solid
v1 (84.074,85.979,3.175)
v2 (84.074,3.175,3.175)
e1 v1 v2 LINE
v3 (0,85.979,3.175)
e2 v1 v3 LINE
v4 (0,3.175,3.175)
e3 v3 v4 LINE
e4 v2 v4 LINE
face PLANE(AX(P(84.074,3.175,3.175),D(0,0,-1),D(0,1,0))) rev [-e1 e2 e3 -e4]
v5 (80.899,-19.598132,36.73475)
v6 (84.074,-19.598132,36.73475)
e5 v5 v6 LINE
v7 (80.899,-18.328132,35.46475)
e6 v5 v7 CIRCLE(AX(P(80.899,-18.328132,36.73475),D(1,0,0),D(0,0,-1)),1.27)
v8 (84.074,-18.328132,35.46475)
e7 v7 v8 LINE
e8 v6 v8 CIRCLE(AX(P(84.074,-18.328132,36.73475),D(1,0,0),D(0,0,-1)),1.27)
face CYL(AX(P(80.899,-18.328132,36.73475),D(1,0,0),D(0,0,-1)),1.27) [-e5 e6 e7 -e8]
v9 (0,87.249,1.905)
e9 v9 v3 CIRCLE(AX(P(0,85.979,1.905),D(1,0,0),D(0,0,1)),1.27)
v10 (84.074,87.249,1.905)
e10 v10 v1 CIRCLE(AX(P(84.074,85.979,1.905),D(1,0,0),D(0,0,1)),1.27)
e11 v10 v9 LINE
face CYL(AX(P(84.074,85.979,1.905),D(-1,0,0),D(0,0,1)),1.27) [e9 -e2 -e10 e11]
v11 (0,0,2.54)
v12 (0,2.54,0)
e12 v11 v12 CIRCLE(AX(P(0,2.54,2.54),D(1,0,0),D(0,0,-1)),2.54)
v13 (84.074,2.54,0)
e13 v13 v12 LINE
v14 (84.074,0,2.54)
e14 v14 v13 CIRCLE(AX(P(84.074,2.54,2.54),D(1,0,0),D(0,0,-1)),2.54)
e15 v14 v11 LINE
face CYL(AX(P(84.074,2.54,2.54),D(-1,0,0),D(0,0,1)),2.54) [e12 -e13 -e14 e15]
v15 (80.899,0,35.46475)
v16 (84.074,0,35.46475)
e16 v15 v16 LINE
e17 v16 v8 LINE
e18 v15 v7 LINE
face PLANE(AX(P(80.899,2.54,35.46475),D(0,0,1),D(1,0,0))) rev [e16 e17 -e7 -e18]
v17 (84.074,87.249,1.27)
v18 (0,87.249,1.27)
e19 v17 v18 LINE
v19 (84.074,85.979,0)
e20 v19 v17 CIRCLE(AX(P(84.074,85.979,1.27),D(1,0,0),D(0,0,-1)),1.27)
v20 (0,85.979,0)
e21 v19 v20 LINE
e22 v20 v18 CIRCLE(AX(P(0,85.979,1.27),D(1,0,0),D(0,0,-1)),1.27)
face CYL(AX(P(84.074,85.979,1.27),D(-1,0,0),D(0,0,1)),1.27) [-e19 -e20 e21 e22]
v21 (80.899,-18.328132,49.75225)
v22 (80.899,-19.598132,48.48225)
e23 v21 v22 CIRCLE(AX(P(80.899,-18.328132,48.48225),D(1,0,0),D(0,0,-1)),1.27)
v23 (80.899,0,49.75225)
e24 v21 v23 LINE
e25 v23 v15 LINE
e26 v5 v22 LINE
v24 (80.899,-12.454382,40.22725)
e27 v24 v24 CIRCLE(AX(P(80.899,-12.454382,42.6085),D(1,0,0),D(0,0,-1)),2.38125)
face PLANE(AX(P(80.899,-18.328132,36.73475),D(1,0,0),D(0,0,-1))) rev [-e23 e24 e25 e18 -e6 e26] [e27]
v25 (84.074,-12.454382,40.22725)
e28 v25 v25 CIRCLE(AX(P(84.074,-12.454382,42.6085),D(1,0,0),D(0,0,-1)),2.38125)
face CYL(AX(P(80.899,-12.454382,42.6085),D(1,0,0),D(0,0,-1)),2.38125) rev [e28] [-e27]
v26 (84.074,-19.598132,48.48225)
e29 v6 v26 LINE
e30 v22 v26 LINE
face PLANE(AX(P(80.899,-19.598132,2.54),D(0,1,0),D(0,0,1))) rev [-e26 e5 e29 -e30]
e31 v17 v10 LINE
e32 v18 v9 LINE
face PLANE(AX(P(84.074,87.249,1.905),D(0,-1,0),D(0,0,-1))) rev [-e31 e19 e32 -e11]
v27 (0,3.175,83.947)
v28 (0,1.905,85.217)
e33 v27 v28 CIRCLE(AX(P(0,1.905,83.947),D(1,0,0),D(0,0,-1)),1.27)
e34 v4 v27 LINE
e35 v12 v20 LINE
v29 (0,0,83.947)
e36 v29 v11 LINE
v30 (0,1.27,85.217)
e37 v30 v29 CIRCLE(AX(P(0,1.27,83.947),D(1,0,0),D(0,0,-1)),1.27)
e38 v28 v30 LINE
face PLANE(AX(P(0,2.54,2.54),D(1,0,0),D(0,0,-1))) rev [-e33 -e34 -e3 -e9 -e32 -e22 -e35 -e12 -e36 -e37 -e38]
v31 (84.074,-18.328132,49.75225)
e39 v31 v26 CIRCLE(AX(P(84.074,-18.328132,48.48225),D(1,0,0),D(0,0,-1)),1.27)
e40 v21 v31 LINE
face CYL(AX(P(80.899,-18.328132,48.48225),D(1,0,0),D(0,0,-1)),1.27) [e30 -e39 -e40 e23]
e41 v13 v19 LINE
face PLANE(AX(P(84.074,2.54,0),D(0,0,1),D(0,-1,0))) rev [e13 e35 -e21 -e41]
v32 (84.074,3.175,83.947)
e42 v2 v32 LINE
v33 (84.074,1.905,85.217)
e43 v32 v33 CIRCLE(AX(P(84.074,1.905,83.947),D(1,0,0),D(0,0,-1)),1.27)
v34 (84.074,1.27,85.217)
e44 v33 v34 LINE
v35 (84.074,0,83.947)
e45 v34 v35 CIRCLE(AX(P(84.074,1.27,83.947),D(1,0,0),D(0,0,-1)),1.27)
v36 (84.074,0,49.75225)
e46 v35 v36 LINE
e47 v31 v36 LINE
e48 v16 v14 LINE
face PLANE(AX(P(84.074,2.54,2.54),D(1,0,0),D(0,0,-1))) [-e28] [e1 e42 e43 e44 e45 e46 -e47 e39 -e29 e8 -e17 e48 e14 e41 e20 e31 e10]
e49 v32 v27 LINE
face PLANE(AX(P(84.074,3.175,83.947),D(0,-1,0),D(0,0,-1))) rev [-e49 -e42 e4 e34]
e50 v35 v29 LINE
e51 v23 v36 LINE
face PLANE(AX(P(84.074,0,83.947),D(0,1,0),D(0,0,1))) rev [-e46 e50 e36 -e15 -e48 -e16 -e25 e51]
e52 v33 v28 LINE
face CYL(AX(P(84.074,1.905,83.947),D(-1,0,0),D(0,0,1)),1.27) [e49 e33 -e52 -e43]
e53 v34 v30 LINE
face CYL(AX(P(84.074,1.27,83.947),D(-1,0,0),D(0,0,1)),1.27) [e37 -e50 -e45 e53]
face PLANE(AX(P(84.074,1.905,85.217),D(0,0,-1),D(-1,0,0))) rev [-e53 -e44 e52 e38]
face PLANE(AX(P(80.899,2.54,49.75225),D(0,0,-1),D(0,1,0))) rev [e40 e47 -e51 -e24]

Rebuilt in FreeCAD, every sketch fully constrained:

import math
import FreeCAD as App
import Part
import Sketcher

V = App.Vector
Q = App.Units.Quantity

doc = App.newDocument("Part")
body = doc.addObject("PartDesign::Body", "Body")

# Sketch on YZ plane
sketch1 = doc.addObject("Sketcher::SketchObject", "Sketch")
body.addObject(sketch1)
sketch1.AttachmentSupport = (doc.YZ_Plane, [""])
sketch1.MapMode = "FlatFace"
sketch1.addGeometry(Part.LineSegment(V(2.5, 0, 0), V(86, 0, 0)), False)
sketch1.addGeometry(Part.ArcOfCircle(Part.Circle(V(86, 1.3, 0), V(0, 0, 1), 1.3), math.radians(-90), math.radians(0)), False)
sketch1.addGeometry(Part.LineSegment(V(87.2, 1.3, 0), V(87.2, 1.9, 0)), False)
sketch1.addGeometry(Part.ArcOfCircle(Part.Circle(V(86, 1.9, 0), V(0, 0, 1), 1.3), math.radians(0), math.radians(90)), False)
sketch1.addGeometry(Part.LineSegment(V(86, 3.2, 0), V(3.2, 3.2, 0)), False)
sketch1.addGeometry(Part.LineSegment(V(3.2, 3.2, 0), V(3.2, 83.9, 0)), False)
sketch1.addGeometry(Part.ArcOfCircle(Part.Circle(V(1.9, 83.9, 0), V(0, 0, 1), 1.3), math.radians(0), math.radians(90)), False)
sketch1.addGeometry(Part.LineSegment(V(1.9, 85.2, 0), V(1.3, 85.2, 0)), False)
sketch1.addGeometry(Part.ArcOfCircle(Part.Circle(V(1.3, 83.9, 0), V(0, 0, 1), 1.3), math.radians(90), math.radians(180)), False)
sketch1.addGeometry(Part.LineSegment(V(0, 83.9, 0), V(0, 2.5, 0)), False)
sketch1.addGeometry(Part.ArcOfCircle(Part.Circle(V(2.5, 2.5, 0), V(0, 0, 1), 2.5), math.radians(-180), math.radians(-90)), False)
sketch1.addConstraint(Sketcher.Constraint("Tangent", 0, 2, 1, 1))
sketch1.addConstraint(Sketcher.Constraint("Tangent", 1, 2, 2, 1))
sketch1.addConstraint(Sketcher.Constraint("Tangent", 2, 2, 3, 1))
sketch1.addConstraint(Sketcher.Constraint("Tangent", 3, 2, 4, 1))
sketch1.addConstraint(Sketcher.Constraint("Coincident", 4, 2, 5, 1))
sketch1.addConstraint(Sketcher.Constraint("Tangent", 5, 2, 6, 1))
sketch1.addConstraint(Sketcher.Constraint("Tangent", 6, 2, 7, 1))
sketch1.addConstraint(Sketcher.Constraint("Tangent", 7, 2, 8, 1))
sketch1.addConstraint(Sketcher.Constraint("Tangent", 8, 2, 9, 1))
sketch1.addConstraint(Sketcher.Constraint("Tangent", 9, 2, 10, 1))
sketch1.addConstraint(Sketcher.Constraint("Tangent", 10, 2, 0, 1))
sketch1.addConstraint(Sketcher.Constraint("Horizontal", 0))
sketch1.addConstraint(Sketcher.Constraint("Vertical", 2))
sketch1.addConstraint(Sketcher.Constraint("Horizontal", 4))
sketch1.addConstraint(Sketcher.Constraint("Vertical", 5))
sketch1.addConstraint(Sketcher.Constraint("Horizontal", 7))
sketch1.addConstraint(Sketcher.Constraint("Vertical", 9))
sketch1.addConstraint(Sketcher.Constraint("Equal", 1, 3))
sketch1.addConstraint(Sketcher.Constraint("Equal", 3, 6))
sketch1.addConstraint(Sketcher.Constraint("Equal", 6, 8))
sketch1.addConstraint(Sketcher.Constraint("PointOnObject", 0, 2, -1))
sketch1.addConstraint(Sketcher.Constraint("PointOnObject", 8, 2, -2))
sketch1.addConstraint(Sketcher.Constraint("Equal", 7, 2))
sketch1.addConstraint(Sketcher.Constraint("Radius", 10, Q("0.1 in")))
sketch1.addConstraint(Sketcher.Constraint("Radius", 1, Q("0.05 in")))
sketch1.addConstraint(Sketcher.Constraint("DistanceX", 4, 2, 4, 1, Q("3.26 in")))
sketch1.addConstraint(Sketcher.Constraint("DistanceY", 5, 1, 5, 2, Q("3.18 in")))
sketch1.addConstraint(Sketcher.Constraint("DistanceX", 0, 1, 0, 2, Q("3.285 in")))
pad1 = doc.addObject("PartDesign::Pad", "Pad")
body.addObject(pad1)
pad1.Profile = sketch1
pad1.Length = Q("3.31 in")

# Sketch on YZ plane
sketch2 = doc.addObject("Sketcher::SketchObject", "Sketch001")
body.addObject(sketch2)
sketch2.AttachmentSupport = (doc.YZ_Plane, [""])
sketch2.MapMode = "FlatFace"
sketch2.AttachmentOffset = App.Placement(V(0, 0, 3.31 * 25.4), App.Rotation())
sketch2.addGeometry(Part.LineSegment(V(0, 49.8, 0), V(-18.3, 49.8, 0)), False)
sketch2.addGeometry(Part.ArcOfCircle(Part.Circle(V(-18.3, 48.5, 0), V(0, 0, 1), 1.3), math.radians(90), math.radians(180)), False)
sketch2.addGeometry(Part.LineSegment(V(-19.6, 48.5, 0), V(-19.6, 36.7, 0)), False)
sketch2.addGeometry(Part.ArcOfCircle(Part.Circle(V(-18.3, 36.7, 0), V(0, 0, 1), 1.3), math.radians(180), math.radians(270)), False)
sketch2.addGeometry(Part.LineSegment(V(-18.3, 35.5, 0), V(0, 35.5, 0)), False)
sketch2.addGeometry(Part.LineSegment(V(0, 35.5, 0), V(0, 49.8, 0)), False)
sketch2.addGeometry(Part.Circle(V(-12.5, 42.6, 0), V(0, 0, 1), 2.4), False)
sketch2.addConstraint(Sketcher.Constraint("Tangent", 0, 2, 1, 1))
sketch2.addConstraint(Sketcher.Constraint("Tangent", 1, 2, 2, 1))
sketch2.addConstraint(Sketcher.Constraint("Tangent", 2, 2, 3, 1))
sketch2.addConstraint(Sketcher.Constraint("Tangent", 3, 2, 4, 1))
sketch2.addConstraint(Sketcher.Constraint("Coincident", 4, 2, 5, 1))
sketch2.addConstraint(Sketcher.Constraint("Coincident", 5, 2, 0, 1))
sketch2.addConstraint(Sketcher.Constraint("Horizontal", 0))
sketch2.addConstraint(Sketcher.Constraint("Vertical", 2))
sketch2.addConstraint(Sketcher.Constraint("Horizontal", 4))
sketch2.addConstraint(Sketcher.Constraint("Vertical", 5))
sketch2.addConstraint(Sketcher.Constraint("Equal", 1, 3))
sketch2.addConstraint(Sketcher.Constraint("PointOnObject", 4, 2, -2))
sketch2.addConstraint(Sketcher.Constraint("Radius", 1, Q("0.05 in")))
sketch2.addConstraint(Sketcher.Constraint("Diameter", 6, Q("0.1875 in")))
sketch2.addConstraint(Sketcher.Constraint("DistanceY", 5, 1, 5, 2, Q("0.5625 in")))
sketch2.addConstraint(Sketcher.Constraint("DistanceY", 6, 3, 0, 2, Q("0.28125 in")))
sketch2.addConstraint(Sketcher.Constraint("DistanceX", 1, 2, 6, 3, Q("0.28125 in")))
sketch2.addConstraint(Sketcher.Constraint("DistanceY", -1, 1, 6, 3, Q("1.6775 in")))
sketch2.addConstraint(Sketcher.Constraint("DistanceX", 0, 2, 0, 1, 18.328132))
pad2 = doc.addObject("PartDesign::Pad", "Pad001")
body.addObject(pad2)
pad2.Profile = sketch2
pad2.Length = Q("0.125 in")
pad2.Reversed = True

doc.recompute()
